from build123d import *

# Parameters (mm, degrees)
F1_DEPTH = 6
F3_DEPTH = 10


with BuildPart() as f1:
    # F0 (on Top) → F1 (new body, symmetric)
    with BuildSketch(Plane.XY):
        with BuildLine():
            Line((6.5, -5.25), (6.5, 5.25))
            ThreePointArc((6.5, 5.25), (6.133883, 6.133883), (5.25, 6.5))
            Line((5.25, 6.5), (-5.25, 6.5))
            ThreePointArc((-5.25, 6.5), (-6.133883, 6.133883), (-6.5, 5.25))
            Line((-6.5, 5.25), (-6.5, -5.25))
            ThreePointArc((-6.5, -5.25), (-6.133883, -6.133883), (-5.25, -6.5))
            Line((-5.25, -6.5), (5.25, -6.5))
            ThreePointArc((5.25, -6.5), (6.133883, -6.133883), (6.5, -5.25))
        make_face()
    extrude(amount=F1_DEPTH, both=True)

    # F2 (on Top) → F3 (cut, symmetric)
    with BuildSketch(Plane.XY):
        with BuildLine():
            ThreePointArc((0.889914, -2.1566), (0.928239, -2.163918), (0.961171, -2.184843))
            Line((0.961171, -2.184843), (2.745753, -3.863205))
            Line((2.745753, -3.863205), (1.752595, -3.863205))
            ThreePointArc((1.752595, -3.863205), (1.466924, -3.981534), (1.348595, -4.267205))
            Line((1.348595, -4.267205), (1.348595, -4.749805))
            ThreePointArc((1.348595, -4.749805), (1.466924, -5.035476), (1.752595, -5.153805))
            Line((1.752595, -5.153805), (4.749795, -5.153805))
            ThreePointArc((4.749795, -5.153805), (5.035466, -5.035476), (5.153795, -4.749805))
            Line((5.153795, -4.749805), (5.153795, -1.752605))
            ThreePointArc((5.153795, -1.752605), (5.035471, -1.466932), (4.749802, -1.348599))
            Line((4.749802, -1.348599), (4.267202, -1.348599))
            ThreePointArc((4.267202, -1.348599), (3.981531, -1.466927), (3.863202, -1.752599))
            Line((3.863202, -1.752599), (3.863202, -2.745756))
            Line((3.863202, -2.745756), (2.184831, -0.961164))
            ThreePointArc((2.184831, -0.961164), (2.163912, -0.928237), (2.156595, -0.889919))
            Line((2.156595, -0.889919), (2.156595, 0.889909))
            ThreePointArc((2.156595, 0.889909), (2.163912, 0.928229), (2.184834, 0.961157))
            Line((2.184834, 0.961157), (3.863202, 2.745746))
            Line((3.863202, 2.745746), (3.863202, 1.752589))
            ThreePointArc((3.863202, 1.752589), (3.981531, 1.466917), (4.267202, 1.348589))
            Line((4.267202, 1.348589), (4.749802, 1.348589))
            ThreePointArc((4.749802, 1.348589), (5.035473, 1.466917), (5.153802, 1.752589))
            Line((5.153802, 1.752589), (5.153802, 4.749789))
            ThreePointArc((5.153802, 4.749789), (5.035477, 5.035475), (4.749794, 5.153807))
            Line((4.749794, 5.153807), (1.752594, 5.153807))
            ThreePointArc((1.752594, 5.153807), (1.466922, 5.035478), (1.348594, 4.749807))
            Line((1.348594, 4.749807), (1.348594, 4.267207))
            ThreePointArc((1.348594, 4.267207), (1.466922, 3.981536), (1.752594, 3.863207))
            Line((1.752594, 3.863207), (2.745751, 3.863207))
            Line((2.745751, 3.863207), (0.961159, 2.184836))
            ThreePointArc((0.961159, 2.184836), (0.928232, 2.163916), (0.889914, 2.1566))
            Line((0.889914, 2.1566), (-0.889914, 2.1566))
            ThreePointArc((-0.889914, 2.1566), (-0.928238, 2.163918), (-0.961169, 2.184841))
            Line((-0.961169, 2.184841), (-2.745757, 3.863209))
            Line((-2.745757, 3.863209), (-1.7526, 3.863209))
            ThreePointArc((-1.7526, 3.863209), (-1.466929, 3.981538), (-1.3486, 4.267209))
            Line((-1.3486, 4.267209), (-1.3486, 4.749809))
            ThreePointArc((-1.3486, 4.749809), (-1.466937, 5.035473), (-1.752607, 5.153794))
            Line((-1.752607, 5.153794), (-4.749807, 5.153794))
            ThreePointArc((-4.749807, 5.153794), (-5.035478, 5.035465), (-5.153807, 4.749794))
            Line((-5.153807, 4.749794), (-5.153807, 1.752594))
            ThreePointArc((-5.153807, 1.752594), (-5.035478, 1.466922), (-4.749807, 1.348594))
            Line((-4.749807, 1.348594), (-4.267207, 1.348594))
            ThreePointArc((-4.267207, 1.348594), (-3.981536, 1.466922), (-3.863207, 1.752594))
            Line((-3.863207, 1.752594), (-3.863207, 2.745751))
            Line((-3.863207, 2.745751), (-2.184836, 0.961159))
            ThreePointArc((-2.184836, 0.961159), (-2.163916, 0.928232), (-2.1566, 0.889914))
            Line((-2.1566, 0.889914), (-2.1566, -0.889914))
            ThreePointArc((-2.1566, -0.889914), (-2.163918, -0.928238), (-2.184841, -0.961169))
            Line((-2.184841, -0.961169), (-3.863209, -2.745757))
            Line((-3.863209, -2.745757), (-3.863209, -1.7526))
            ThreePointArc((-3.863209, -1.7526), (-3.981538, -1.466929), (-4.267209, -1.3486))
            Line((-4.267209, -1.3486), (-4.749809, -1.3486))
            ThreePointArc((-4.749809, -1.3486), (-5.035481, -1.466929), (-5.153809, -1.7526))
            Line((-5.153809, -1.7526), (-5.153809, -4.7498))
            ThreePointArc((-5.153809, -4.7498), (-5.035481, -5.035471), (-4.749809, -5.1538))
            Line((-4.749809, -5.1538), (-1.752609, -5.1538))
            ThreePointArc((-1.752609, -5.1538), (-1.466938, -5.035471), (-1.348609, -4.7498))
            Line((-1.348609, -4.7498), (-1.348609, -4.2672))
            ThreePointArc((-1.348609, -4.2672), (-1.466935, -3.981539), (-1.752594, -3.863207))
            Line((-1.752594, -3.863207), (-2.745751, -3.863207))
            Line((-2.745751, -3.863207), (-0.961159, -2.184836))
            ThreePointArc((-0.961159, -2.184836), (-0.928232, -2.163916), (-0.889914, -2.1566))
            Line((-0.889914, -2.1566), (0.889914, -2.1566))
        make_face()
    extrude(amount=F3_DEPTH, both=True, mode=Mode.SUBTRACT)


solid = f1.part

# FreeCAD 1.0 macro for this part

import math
import FreeCAD as App
import Part
import Sketcher
from FreeCAD import Vector
Q = App.Units.Quantity

doc = App.newDocument("Part")
params = doc.addObject("Spreadsheet::Sheet", "Params")
for row, (alias, value) in enumerate([
    ("sketch1_radius", "1.250002 mm"),
    ("sketch1_width", "10.5 mm"),
    ("pad1_length", "12 mm"),
    ("pocket1_length", "20 mm"),
], start=1):
    params.set(f"A{row}", alias)
    params.set(f"B{row}", "=" + value)
    params.setAlias(f"B{row}", alias)

body = doc.addObject("PartDesign::Body", "Body")

sketch1 = body.newObject("Sketcher::SketchObject", "Sketch")
sketch1.AttachmentSupport = (doc.getObject("XY_Plane"), [""])
sketch1.MapMode = "FlatFace"
sketch1.addGeometry([
    Part.LineSegment(Vector(6.5, -5.2, 0), Vector(6.5, 5.2, 0)),
    Part.ArcOfCircle(Part.Circle(Vector(5.2, 5.2, 0), Vector(0, 0, 1), 1.3), math.radians(0), math.radians(90)),
    Part.LineSegment(Vector(5.2, 6.5, 0), Vector(-5.2, 6.5, 0)),
    Part.ArcOfCircle(Part.Circle(Vector(-5.2, 5.2, 0), Vector(0, 0, 1), 1.3), math.radians(90), math.radians(180)),
    Part.LineSegment(Vector(-6.5, 5.2, 0), Vector(-6.5, -5.2, 0)),
    Part.ArcOfCircle(Part.Circle(Vector(-5.2, -5.2, 0), Vector(0, 0, 1), 1.3), math.radians(-180), math.radians(-90)),
    Part.LineSegment(Vector(-5.2, -6.5, 0), Vector(5.2, -6.5, 0)),
    Part.ArcOfCircle(Part.Circle(Vector(5.2, -5.2, 0), Vector(0, 0, 1), 1.3), math.radians(-90), math.radians(0)),
], False)
sketch1.addConstraint([
    Sketcher.Constraint("Tangent", 0, 2, 1, 1),
    Sketcher.Constraint("Tangent", 1, 2, 2, 1),
    Sketcher.Constraint("Tangent", 2, 2, 3, 1),
    Sketcher.Constraint("Tangent", 3, 2, 4, 1),
    Sketcher.Constraint("Tangent", 4, 2, 5, 1),
    Sketcher.Constraint("Tangent", 5, 2, 6, 1),
    Sketcher.Constraint("Tangent", 6, 2, 7, 1),
    Sketcher.Constraint("Tangent", 7, 2, 0, 1),
    Sketcher.Constraint("Vertical", 0),
    Sketcher.Constraint("Horizontal", 2),
    Sketcher.Constraint("Vertical", 4),
    Sketcher.Constraint("Horizontal", 6),
    Sketcher.Constraint("Equal", 1, 3),
    Sketcher.Constraint("Equal", 3, 5),
    Sketcher.Constraint("Equal", 5, 7),
    Sketcher.Constraint("Symmetric", 1, 3, 5, 3, -1, 1),
    Sketcher.Constraint("Equal", 6, 0),
    Sketcher.Constraint("Radius", 1, Q("1.250002 mm")),
    Sketcher.Constraint("DistanceX", 2, 2, 2, 1, Q("10.5 mm")),
])
sketch1.setExpression("Constraints[17]", "Params.sketch1_radius")
sketch1.setExpression("Constraints[18]", "Params.sketch1_width")
pad1 = body.newObject("PartDesign::Pad", "Pad")
pad1.Profile = sketch1
pad1.setExpression("Length", "Params.pad1_length")
pad1.Midplane = True

sketch2 = body.newObject("Sketcher::SketchObject", "Sketch001")
sketch2.AttachmentSupport = (doc.getObject("XY_Plane"), [""])
sketch2.MapMode = "FlatFace"
sketch2.addGeometry([
    Part.ArcOfCircle(Part.Circle(Vector(0.89, -2.26, 0), Vector(0, 0, 1), 0.1), math.radians(47), math.radians(90)),
    Part.LineSegment(Vector(0.96, -2.18, 0), Vector(2.75, -3.86, 0)),
    Part.LineSegment(Vector(2.75, -3.86, 0), Vector(1.75, -3.86, 0)),
    Part.ArcOfCircle(Part.Circle(Vector(1.75, -4.27, 0), Vector(0, 0, 1), 0.4), math.radians(90), math.radians(180)),
    Part.LineSegment(Vector(1.35, -4.27, 0), Vector(1.35, -4.75, 0)),
    Part.ArcOfCircle(Part.Circle(Vector(1.75, -4.75, 0), Vector(0, 0, 1), 0.4), math.radians(-180), math.radians(-90)),
    Part.LineSegment(Vector(1.75, -5.15, 0), Vector(4.75, -5.15, 0)),
    Part.ArcOfCircle(Part.Circle(Vector(4.75, -4.75, 0), Vector(0, 0, 1), 0.4), math.radians(-90), math.radians(0)),
    Part.LineSegment(Vector(5.15, -4.75, 0), Vector(5.15, -1.75, 0)),
    Part.ArcOfCircle(Part.Circle(Vector(4.75, -1.75, 0), Vector(0, 0, 1), 0.4), math.radians(0), math.radians(90)),
    Part.LineSegment(Vector(4.75, -1.35, 0), Vector(4.27, -1.35, 0)),
    Part.ArcOfCircle(Part.Circle(Vector(4.27, -1.75, 0), Vector(0, 0, 1), 0.4), math.radians(90), math.radians(180)),
    Part.LineSegment(Vector(3.86, -1.75, 0), Vector(3.86, -2.75, 0)),
    Part.LineSegment(Vector(3.86, -2.75, 0), Vector(2.18, -0.96, 0)),
    Part.ArcOfCircle(Part.Circle(Vector(2.26, -0.89, 0), Vector(0, 0, 1), 0.1), math.radians(-180), math.radians(-137)),
    Part.LineSegment(Vector(2.16, -0.89, 0), Vector(2.16, 0.89, 0)),
    Part.ArcOfCircle(Part.Circle(Vector(2.26, 0.89, 0), Vector(0, 0, 1), 0.1), math.radians(137), math.radians(180)),
    Part.LineSegment(Vector(2.18, 0.96, 0), Vector(3.86, 2.75, 0)),
    Part.LineSegment(Vector(3.86, 2.75, 0), Vector(3.86, 1.75, 0)),
    Part.ArcOfCircle(Part.Circle(Vector(4.27, 1.75, 0), Vector(0, 0, 1), 0.4), math.radians(180), math.radians(270)),
    Part.LineSegment(Vector(4.27, 1.35, 0), Vector(4.75, 1.35, 0)),
    Part.ArcOfCircle(Part.Circle(Vector(4.75, 1.75, 0), Vector(0, 0, 1), 0.4), math.radians(-90), math.radians(0)),
    Part.LineSegment(Vector(5.15, 1.75, 0), Vector(5.15, 4.75, 0)),
    Part.ArcOfCircle(Part.Circle(Vector(4.75, 4.75, 0), Vector(0, 0, 1), 0.4), math.radians(0), math.radians(90)),
    Part.LineSegment(Vector(4.75, 5.15, 0), Vector(1.75, 5.15, 0)),
    Part.ArcOfCircle(Part.Circle(Vector(1.75, 4.75, 0), Vector(0, 0, 1), 0.4), math.radians(90), math.radians(180)),
    Part.LineSegment(Vector(1.35, 4.75, 0), Vector(1.35, 4.27, 0)),
    Part.ArcOfCircle(Part.Circle(Vector(1.75, 4.27, 0), Vector(0, 0, 1), 0.4), math.radians(180), math.radians(270)),
    Part.LineSegment(Vector(1.75, 3.86, 0), Vector(2.75, 3.86, 0)),
    Part.LineSegment(Vector(2.75, 3.86, 0), Vector(0.96, 2.18, 0)),
    Part.ArcOfCircle(Part.Circle(Vector(0.89, 2.26, 0), Vector(0, 0, 1), 0.1), math.radians(-90), math.radians(-47)),
    Part.LineSegment(Vector(0.89, 2.16, 0), Vector(-0.89, 2.16, 0)),
    Part.ArcOfCircle(Part.Circle(Vector(-0.89, 2.26, 0), Vector(0, 0, 1), 0.1), math.radians(-133), math.radians(-90)),
    Part.LineSegment(Vector(-0.96, 2.18, 0), Vector(-2.75, 3.86, 0)),
    Part.LineSegment(Vector(-2.75, 3.86, 0), Vector(-1.75, 3.86, 0)),
    Part.ArcOfCircle(Part.Circle(Vector(-1.75, 4.27, 0), Vector(0, 0, 1), 0.4), math.radians(-90), math.radians(0)),
    Part.LineSegment(Vector(-1.35, 4.27, 0), Vector(-1.35, 4.75, 0)),
    Part.ArcOfCircle(Part.Circle(Vector(-1.75, 4.75, 0), Vector(0, 0, 1), 0.4), math.radians(0), math.radians(90)),
    Part.LineSegment(Vector(-1.75, 5.15, 0), Vector(-4.75, 5.15, 0)),
    Part.ArcOfCircle(Part.Circle(Vector(-4.75, 4.75, 0), Vector(0, 0, 1), 0.4), math.radians(90), math.radians(180)),
    Part.LineSegment(Vector(-5.15, 4.75, 0), Vector(-5.15, 1.75, 0)),
    Part.ArcOfCircle(Part.Circle(Vector(-4.75, 1.75, 0), Vector(0, 0, 1), 0.4), math.radians(180), math.radians(270)),
    Part.LineSegment(Vector(-4.75, 1.35, 0), Vector(-4.27, 1.35, 0)),
    Part.ArcOfCircle(Part.Circle(Vector(-4.27, 1.75, 0), Vector(0, 0, 1), 0.4), math.radians(-90), math.radians(0)),
    Part.LineSegment(Vector(-3.86, 1.75, 0), Vector(-3.86, 2.75, 0)),
    Part.LineSegment(Vector(-3.86, 2.75, 0), Vector(-2.18, 0.96, 0)),
    Part.ArcOfCircle(Part.Circle(Vector(-2.26, 0.89, 0), Vector(0, 0, 1), 0.1), math.radians(0), math.radians(43)),
    Part.LineSegment(Vector(-2.16, 0.89, 0), Vector(-2.16, -0.89, 0)),
    Part.ArcOfCircle(Part.Circle(Vector(-2.26, -0.89, 0), Vector(0, 0, 1), 0.1), math.radians(-43), math.radians(0)),
    Part.LineSegment(Vector(-2.18, -0.96, 0), Vector(-3.86, -2.75, 0)),
    Part.LineSegment(Vector(-3.86, -2.75, 0), Vector(-3.86, -1.75, 0)),
    Part.ArcOfCircle(Part.Circle(Vector(-4.27, -1.75, 0), Vector(0, 0, 1), 0.4), math.radians(0), math.radians(90)),
    Part.LineSegment(Vector(-4.27, -1.35, 0), Vector(-4.75, -1.35, 0)),
    Part.ArcOfCircle(Part.Circle(Vector(-4.75, -1.75, 0), Vector(0, 0, 1), 0.4), math.radians(90), math.radians(180)),
    Part.LineSegment(Vector(-5.15, -1.75, 0), Vector(-5.15, -4.75, 0)),
    Part.ArcOfCircle(Part.Circle(Vector(-4.75, -4.75, 0), Vector(0, 0, 1), 0.4), math.radians(180), math.radians(270)),
    Part.LineSegment(Vector(-4.75, -5.15, 0), Vector(-1.75, -5.15, 0)),
    Part.ArcOfCircle(Part.Circle(Vector(-1.75, -4.75, 0), Vector(0, 0, 1), 0.4), math.radians(-90), math.radians(0)),
    Part.LineSegment(Vector(-1.35, -4.75, 0), Vector(-1.35, -4.27, 0)),
    Part.ArcOfCircle(Part.Circle(Vector(-1.75, -4.27, 0), Vector(0, 0, 1), 0.4), math.radians(0), math.radians(90)),
    Part.LineSegment(Vector(-1.75, -3.86, 0), Vector(-2.75, -3.86, 0)),
    Part.LineSegment(Vector(-2.75, -3.86, 0), Vector(-0.96, -2.18, 0)),
    Part.ArcOfCircle(Part.Circle(Vector(-0.89, -2.26, 0), Vector(0, 0, 1), 0.1), math.radians(90), math.radians(133)),
    Part.LineSegment(Vector(-0.89, -2.16, 0), Vector(0.89, -2.16, 0)),
], False)
sketch2.addConstraint([
    Sketcher.Constraint("Coincident", 0, 1, 1, 1),
    Sketcher.Constraint("Coincident", 1, 2, 2, 1),
    Sketcher.Constraint("Tangent", 2, 2, 3, 1),
    Sketcher.Constraint("Tangent", 3, 2, 4, 1),
    Sketcher.Constraint("Tangent", 4, 2, 5, 1),
    Sketcher.Constraint("Tangent", 5, 2, 6, 1),
    Sketcher.Constraint("Tangent", 6, 2, 7, 1),
    Sketcher.Constraint("Tangent", 7, 2, 8, 1),
    Sketcher.Constraint("Coincident", 8, 2, 9, 1),
    Sketcher.Constraint("Coincident", 9, 2, 10, 1),
    Sketcher.Constraint("Coincident", 10, 2, 11, 1),
    Sketcher.Constraint("Coincident", 11, 2, 12, 1),
    Sketcher.Constraint("Coincident", 12, 2, 13, 1),
    Sketcher.Constraint("Coincident", 13, 2, 14, 2),
    Sketcher.Constraint("Coincident", 14, 1, 15, 1),
    Sketcher.Constraint("Coincident", 15, 2, 16, 2),
    Sketcher.Constraint("Coincident", 16, 1, 17, 1),
    Sketcher.Constraint("Coincident", 17, 2, 18, 1),
    Sketcher.Constraint("Coincident", 18, 2, 19, 1),
    Sketcher.Constraint("Coincident", 19, 2, 20, 1),
    Sketcher.Constraint("Coincident", 20, 2, 21, 1),
    Sketcher.Constraint("Coincident", 21, 2, 22, 1),
    Sketcher.Constraint("Coincident", 22, 2, 23, 1),
    Sketcher.Constraint("Coincident", 23, 2, 24, 1),
    Sketcher.Constraint("Coincident", 24, 2, 25, 1),
    Sketcher.Constraint("Coincident", 25, 2, 26, 1),
    Sketcher.Constraint("Coincident", 26, 2, 27, 1),
    Sketcher.Constraint("Coincident", 27, 2, 28, 1),
    Sketcher.Constraint("Coincident", 28, 2, 29, 1),
    Sketcher.Constraint("Coincident", 29, 2, 30, 2),
    Sketcher.Constraint("Coincident", 30, 1, 31, 1),
    Sketcher.Constraint("Coincident", 31, 2, 32, 2),
    Sketcher.Constraint("Coincident", 32, 1, 33, 1),
    Sketcher.Constraint("Coincident", 33, 2, 34, 1),
    Sketcher.Constraint("Tangent", 34, 2, 35, 1),
    Sketcher.Constraint("Tangent", 35, 2, 36, 1),
    Sketcher.Constraint("Coincident", 36, 2, 37, 1),
    Sketcher.Constraint("Coincident", 37, 2, 38, 1),
    Sketcher.Constraint("Tangent", 38, 2, 39, 1),
    Sketcher.Constraint("Tangent", 39, 2, 40, 1),
    Sketcher.Constraint("Coincident", 40, 2, 41, 1),
    Sketcher.Constraint("Coincident", 41, 2, 42, 1),
    Sketcher.Constraint("Coincident", 42, 2, 43, 1),
    Sketcher.Constraint("Coincident", 43, 2, 44, 1),
    Sketcher.Constraint("Coincident", 44, 2, 45, 1),
    Sketcher.Constraint("Coincident", 45, 2, 46, 2),
    Sketcher.Constraint("Coincident", 46, 1, 47, 1),
    Sketcher.Constraint("Coincident", 47, 2, 48, 2),
    Sketcher.Constraint("Coincident", 48, 1, 49, 1),
    Sketcher.Constraint("Coincident", 49, 2, 50, 1),
    Sketcher.Constraint("Tangent", 50, 2, 51, 1),
    Sketcher.Constraint("Tangent", 51, 2, 52, 1),
    Sketcher.Constraint("Coincident", 52, 2, 53, 1),
    Sketcher.Constraint("Coincident", 53, 2, 54, 1),
    Sketcher.Constraint("Coincident", 54, 2, 55, 1),
    Sketcher.Constraint("Coincident", 55, 2, 56, 1),
    Sketcher.Constraint("Tangent", 56, 2, 57, 1),
    Sketcher.Constraint("Tangent", 57, 2, 58, 1),
    Sketcher.Constraint("Coincident", 58, 2, 59, 1),
    Sketcher.Constraint("Coincident", 59, 2, 60, 1),
    Sketcher.Constraint("Coincident", 60, 2, 61, 1),
    Sketcher.Constraint("Coincident", 61, 2, 62, 2),
    Sketcher.Constraint("Coincident", 62, 1, 63, 1),
    Sketcher.Constraint("Coincident", 63, 2, 0, 2),
    Sketcher.Constraint("Horizontal", 2),
    Sketcher.Constraint("Vertical", 4),
    Sketcher.Constraint("Horizontal", 6),
    Sketcher.Constraint("Vertical", 8),
    Sketcher.Constraint("Horizontal", 10),
    Sketcher.Constraint("Vertical", 12),
    Sketcher.Constraint("Vertical", 15),
    Sketcher.Constraint("Vertical", 18),
    Sketcher.Constraint("Horizontal", 20),
    Sketcher.Constraint("Vertical", 22),
    Sketcher.Constraint("Horizontal", 24),
    Sketcher.Constraint("Vertical", 26),
    Sketcher.Constraint("Horizontal", 28),
    Sketcher.Constraint("Horizontal", 31),
    Sketcher.Constraint("Horizontal", 34),
    Sketcher.Constraint("Vertical", 36),
    Sketcher.Constraint("Horizontal", 38),
    Sketcher.Constraint("Vertical", 40),
    Sketcher.Constraint("Horizontal", 42),
    Sketcher.Constraint("Vertical", 44),
    Sketcher.Constraint("Vertical", 47),
    Sketcher.Constraint("Vertical", 50),
    Sketcher.Constraint("Horizontal", 52),
    Sketcher.Constraint("Vertical", 54),
    Sketcher.Constraint("Horizontal", 56),
    Sketcher.Constraint("Vertical", 58),
    Sketcher.Constraint("Horizontal", 60),
    Sketcher.Constraint("Horizontal", 63),
    Sketcher.Constraint("Equal", 3, 5),
    Sketcher.Constraint("Equal", 5, 7),
    Sketcher.Constraint("Equal", 7, 9),
    Sketcher.Constraint("Equal", 9, 11),
    Sketcher.Constraint("Equal", 0, 14),
    Sketcher.Constraint("Equal", 11, 19),
    Sketcher.Constraint("Equal", 19, 21),
    Sketcher.Constraint("Equal", 21, 23),
    Sketcher.Constraint("Equal", 23, 25),
    Sketcher.Constraint("Equal", 25, 27),
    Sketcher.Constraint("Equal", 16, 30),
    Sketcher.Constraint("Equal", 27, 35),
    Sketcher.Constraint("Equal", 35, 37),
    Sketcher.Constraint("Equal", 37, 39),
    Sketcher.Constraint("Equal", 39, 41),
    Sketcher.Constraint("Equal", 41, 43),
    Sketcher.Constraint("Equal", 30, 46),
    Sketcher.Constraint("Equal", 32, 48),
    Sketcher.Constraint("Equal", 43, 51),
    Sketcher.Constraint("Equal", 51, 53),
    Sketcher.Constraint("Equal", 53, 55),
    Sketcher.Constraint("Equal", 55, 57),
    Sketcher.Constraint("Equal", 57, 59),
    Sketcher.Constraint("Equal", 46, 62),
    Sketcher.Constraint("Symmetric", 0, 3, 32, 3, -1, 1),
    Sketcher.Constraint("Symmetric", 3, 3, 35, 3, -1, 1),
    Sketcher.Constraint("Symmetric", 11, 3, 43, 3, -1, 1),
    Sketcher.Constraint("Symmetric", 14, 3, 46, 3, -1, 1),
    Sketcher.Constraint("Symmetric", 23, 3, 55, 3, -1, 1),
    Sketcher.Constraint("Symmetric", 30, 3, 62, 3, -1, 1),
    Sketcher.Constraint("Symmetric", 13, 2, 45, 2, -1, 1),
    Sketcher.Constraint("Symmetric", 27, 2, 59, 2, -1, 1),
    Sketcher.Constraint("Symmetric", 27, 3, 35, 3, -2),
    Sketcher.Constraint("Symmetric", 21, 3, 41, 3, -2),
    Sketcher.Constraint("Symmetric", 11, 3, 51, 3, -2),
    Sketcher.Constraint("Symmetric", 18, 2, 43, 2, -2),
    Sketcher.Constraint("Symmetric", 16, 1, 45, 2, -2),
    Sketcher.Constraint("Symmetric", 7, 3, 23, 3, -1),
    Sketcher.Constraint("Symmetric", 38, 2, 55, 2, -1),
    Sketcher.Constraint("Perpendicular", 1, 17),
    Sketcher.Constraint("Perpendicular", 13, 29),
    Sketcher.Constraint("Perpendicular", 17, 33),
    Sketcher.Constraint("Perpendicular", 29, 45),
    Sketcher.Constraint("Perpendicular", 33, 49),
    Sketcher.Constraint("Perpendicular", 45, 61),
    Sketcher.Constraint("Horizontal", 53, 3, 11, 2),
    Sketcher.Constraint("Horizontal", 16, 3, 15, 2),
    Sketcher.Constraint("Horizontal", 21, 3, 18, 2),
    Sketcher.Constraint("Horizontal", 18, 2, 21, 2),
    Sketcher.Constraint("Horizontal", 23, 3, 25, 2),
    Sketcher.Constraint("Horizontal", 27, 3, 26, 2),
    Sketcher.Constraint("Horizontal", 25, 3, 36, 2),
    Sketcher.Constraint("Horizontal", 43, 3, 40, 2),
    Sketcher.Constraint("Horizontal", 48, 3, 47, 2),
    Sketcher.Constraint("Horizontal", 12, 2, 49, 2),
    Sketcher.Constraint("Horizontal", 50, 2, 53, 2),
    Sketcher.Constraint("Horizontal", 57, 3, 54, 2),
    Sketcher.Constraint("Vertical", 0, 3, 30, 3),
    Sketcher.Constraint("Vertical", 23, 3, 9, 2),
    Sketcher.Constraint("Vertical", 19, 3, 10, 2),
    Sketcher.Constraint("Vertical", 10, 2, 19, 2),
    Sketcher.Constraint("Vertical", 9, 2, 20, 2),
    Sketcher.Constraint("Vertical", 6, 2, 23, 2),
    Sketcher.Constraint("Vertical", 5, 2, 24, 2),
    Sketcher.Constraint("Vertical", 24, 2, 27, 2),
    Sketcher.Constraint("Vertical", 0, 3, 30, 1),
    Sketcher.Constraint("Vertical", 62, 3, 31, 2),
    Sketcher.Constraint("Vertical", 38, 2, 41, 2),
    Sketcher.Constraint("Vertical", 43, 3, 42, 2),
    Sketcher.Constraint("Vertical", 55, 3, 52, 2),
    Sketcher.Constraint("Vertical", 31, 2, 62, 1),
    Sketcher.Constraint("Vertical", 30, 1, 63, 2),
    Sketcher.Constraint("Equal", 2, 28),
    Sketcher.Constraint("Equal", 24, 38),
    Sketcher.Constraint("Equal", 38, 56),
    Sketcher.Constraint("Equal", 52, 4),
    Sketcher.Constraint("Equal", 56, 8),
    Sketcher.Constraint("Equal", 60, 12),
    Sketcher.Constraint("Equal", 63, 15),
    Sketcher.Constraint("Equal", 8, 22),
    Sketcher.Constraint("Equal", 22, 40),
    Sketcher.Constraint("Equal", 15, 47),
    Sketcher.Constraint("Equal", 36, 58),
    Sketcher.Constraint("Equal", 13, 29),
    Sketcher.Constraint("Equal", 17, 33),
    Sketcher.Constraint("Equal", 33, 49),
    Sketcher.Constraint("Equal", 45, 61),
    Sketcher.Constraint("Radius", 3, Q("0.404 mm")),
    Sketcher.Constraint("Radius", 16, Q("0.103999 mm")),
    Sketcher.Constraint("DistanceX", 6, 1, 6, 2, Q("2.9972 mm")),
    Sketcher.Constraint("DistanceX", 10, 2, 10, 1, Q("0.4826 mm")),
    Sketcher.Constraint("DistanceX", 2, 2, 2, 1, Q("0.993158 mm")),
    Sketcher.Constraint("DistanceX", -1, 1, 11, 3, Q("4.267201 mm")),
    Sketcher.Constraint("DistanceY", 51, 3, -1, 1, Q("1.7526 mm")),
    Sketcher.Constraint("DistanceY", -1, 1, 30, 1, Q("2.1566 mm")),
    Sketcher.Constraint("DistanceX", 46, 1, -1, 1, Q("2.1566 mm")),
    Sketcher.Constraint("Distance", 33, Q("2.449831 mm")),
    Sketcher.Constraint("DistanceX", 31, 2, 31, 1, Q("1.779828 mm")),
    Sketcher.Constraint("DistanceX", -1, 1, 0, 1, Q("0.961171 mm")),
])
pocket1 = body.newObject("PartDesign::Pocket", "Pocket")
pocket1.Profile = sketch2
pocket1.setExpression("Length", "Params.pocket1_length")
pocket1.Midplane = True

doc.recompute()
